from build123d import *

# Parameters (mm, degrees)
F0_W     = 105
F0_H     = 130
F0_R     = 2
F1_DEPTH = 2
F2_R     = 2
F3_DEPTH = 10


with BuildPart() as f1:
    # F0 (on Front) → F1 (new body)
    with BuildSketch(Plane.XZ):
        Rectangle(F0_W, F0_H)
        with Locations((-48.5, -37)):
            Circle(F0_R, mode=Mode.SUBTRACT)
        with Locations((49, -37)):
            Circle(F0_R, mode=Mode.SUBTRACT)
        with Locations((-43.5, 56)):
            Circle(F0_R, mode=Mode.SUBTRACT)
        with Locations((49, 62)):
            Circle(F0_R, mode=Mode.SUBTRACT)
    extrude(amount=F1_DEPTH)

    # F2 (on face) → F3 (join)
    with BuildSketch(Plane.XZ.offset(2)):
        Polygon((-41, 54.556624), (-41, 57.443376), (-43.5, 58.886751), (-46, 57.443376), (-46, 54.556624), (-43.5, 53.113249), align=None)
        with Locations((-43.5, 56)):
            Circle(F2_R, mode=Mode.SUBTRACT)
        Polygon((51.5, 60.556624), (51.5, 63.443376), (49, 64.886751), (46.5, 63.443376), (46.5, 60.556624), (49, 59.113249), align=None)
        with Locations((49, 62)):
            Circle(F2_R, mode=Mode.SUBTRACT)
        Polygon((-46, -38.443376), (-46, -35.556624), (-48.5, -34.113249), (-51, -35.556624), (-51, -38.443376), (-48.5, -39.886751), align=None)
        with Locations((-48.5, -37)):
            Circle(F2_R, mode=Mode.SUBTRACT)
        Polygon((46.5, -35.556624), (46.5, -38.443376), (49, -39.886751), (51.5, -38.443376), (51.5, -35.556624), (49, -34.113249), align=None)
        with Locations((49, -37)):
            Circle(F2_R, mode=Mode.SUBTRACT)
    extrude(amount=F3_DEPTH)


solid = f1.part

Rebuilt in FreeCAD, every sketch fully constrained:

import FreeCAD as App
import Part
import Sketcher

V = App.Vector
Q = App.Units.Quantity


def add_polygon(sketch, points):
    """Adds a closed chain of lines whose ends are joined by coincident constraints."""
    first, n = sketch.GeometryCount, len(points)
    for a, b in zip(points, points[1:] + points[:1]):
        sketch.addGeometry(Part.LineSegment(App.Vector(*a, 0), App.Vector(*b, 0)), False)
    for i in range(n):
        sketch.addConstraint(Sketcher.Constraint("Coincident", first + i, 2, first + (i + 1) % n, 1))

doc = App.newDocument("Part")
body = doc.addObject("PartDesign::Body", "Body")

# Sketch on XZ plane
sketch1 = body.newObject("Sketcher::SketchObject", "Sketch")
sketch1.AttachmentSupport = (doc.getObject("XZ_Plane"), [""])
sketch1.MapMode = "FlatFace"
add_polygon(sketch1, [(-52.5, 65), (-52.5, -65), (52.5, -65), (52.5, 65)])  # lines 0-3
sketch1.addGeometry(Part.Circle(V(-48.5, -37, 0), V(0, 0, 1), 2), False)  # 4
sketch1.addGeometry(Part.Circle(V(49, -37, 0), V(0, 0, 1), 2), False)  # 5
sketch1.addGeometry(Part.Circle(V(-43.5, 56, 0), V(0, 0, 1), 2), False)  # 6
sketch1.addGeometry(Part.Circle(V(49, 62, 0), V(0, 0, 1), 2), False)  # 7
sketch1.addConstraint([
    Sketcher.Constraint("Vertical", 0),
    Sketcher.Constraint("Horizontal", 1),
    Sketcher.Constraint("Vertical", 2),
    Sketcher.Constraint("Horizontal", 3),
    Sketcher.Constraint("Equal", 4, 5),
    Sketcher.Constraint("Equal", 5, 6),
    Sketcher.Constraint("Equal", 6, 7),
    Sketcher.Constraint("Symmetric", 0, 2, 2, 2, -1, 1),
    Sketcher.Constraint("Horizontal", 4, 3, 5, 3),
    Sketcher.Constraint("Vertical", 5, 3, 7, 3),
    Sketcher.Constraint("Diameter", 4, 4.0),
    Sketcher.Constraint("DistanceX", 1, 1, 1, 2, 105.0),
    Sketcher.Constraint("DistanceY", 0, 2, 0, 1, 130.0),
    Sketcher.Constraint("DistanceY", 4, 3, -1, 1, 37.0),
    Sketcher.Constraint("DistanceX", -1, 1, 5, 3, 49.0),
    Sketcher.Constraint("DistanceY", -1, 1, 6, 3, 56.0),
    Sketcher.Constraint("DistanceY", -1, 1, 7, 3, 62.0),
    Sketcher.Constraint("DistanceX", 4, 3, 6, 3, 5.0),
    Sketcher.Constraint("DistanceX", 0, 2, 4, 3, 4.0),
])
pad1 = body.newObject("PartDesign::Pad", "Pad")
pad1.Profile = sketch1
pad1.Length = 2

# Sketch on XZ plane
sketch2 = body.newObject("Sketcher::SketchObject", "Sketch001")
sketch2.AttachmentSupport = (doc.getObject("XZ_Plane"), [""])
sketch2.MapMode = "FlatFace"
sketch2.AttachmentOffset = App.Placement(V(0, 0, 2), App.Rotation())
add_polygon(sketch2, [(-41, 54.6), (-41, 57.4), (-43.5, 58.9), (-46, 57.4), (-46, 54.6), (-43.5, 53.1)])  # lines 0-5
sketch2.addGeometry(Part.Circle(V(-43.5, 56, 0), V(0, 0, 1), 2), False)  # 6
add_polygon(sketch2, [(51.5, 60.6), (51.5, 63.4), (49, 64.9), (46.5, 63.4), (46.5, 60.6), (49, 59.1)])  # lines 7-12
sketch2.addGeometry(Part.Circle(V(49, 62, 0), V(0, 0, 1), 2), False)  # 13
add_polygon(sketch2, [(-46, -38.4), (-46, -35.6), (-48.5, -34.1), (-51, -35.6), (-51, -38.4), (-48.5, -39.9)])  # lines 14-19
sketch2.addGeometry(Part.Circle(V(-48.5, -37, 0), V(0, 0, 1), 2), False)  # 20
add_polygon(sketch2, [(46.5, -35.6), (46.5, -38.4), (49, -39.9), (51.5, -38.4), (51.5, -35.6), (49, -34.1)])  # lines 21-26
sketch2.addGeometry(Part.Circle(V(49, -37, 0), V(0, 0, 1), 2), False)  # 27
sketch2.addConstraint([
    Sketcher.Constraint("Vertical", 0),
    Sketcher.Constraint("Vertical", 3),
    Sketcher.Constraint("Vertical", 7),
    Sketcher.Constraint("Vertical", 10),
    Sketcher.Constraint("Vertical", 14),
    Sketcher.Constraint("Vertical", 17),
    Sketcher.Constraint("Vertical", 21),
    Sketcher.Constraint("Vertical", 24),
    Sketcher.Constraint("Equal", 6, 13),
    Sketcher.Constraint("Equal", 13, 20),
    Sketcher.Constraint("Equal", 20, 27),
    Sketcher.Constraint("Parallel", 1, 4),
    Sketcher.Constraint("Parallel", 2, 5),
    Sketcher.Constraint("Parallel", 4, 8),
    Sketcher.Constraint("Parallel", 5, 9),
    Sketcher.Constraint("Parallel", 8, 11),
    Sketcher.Constraint("Parallel", 9, 12),
    Sketcher.Constraint("Parallel", 11, 15),
    Sketcher.Constraint("Parallel", 12, 16),
    Sketcher.Constraint("Parallel", 15, 18),
    Sketcher.Constraint("Parallel", 16, 19),
    Sketcher.Constraint("Parallel", 18, 22),
    Sketcher.Constraint("Parallel", 19, 23),
    Sketcher.Constraint("Parallel", 22, 25),
    Sketcher.Constraint("Parallel", 23, 26),
    Sketcher.Constraint("Horizontal", 20, 3, 27, 3),
    Sketcher.Constraint("Horizontal", 0, 2, 2, 2),
    Sketcher.Constraint("Horizontal", 3, 2, 5, 2),
    Sketcher.Constraint("Horizontal", 7, 2, 9, 2),
    Sketcher.Constraint("Horizontal", 10, 2, 12, 2),
    Sketcher.Constraint("Horizontal", 14, 2, 16, 2),
    Sketcher.Constraint("Horizontal", 17, 2, 19, 2),
    Sketcher.Constraint("Horizontal", 19, 2, 21, 2),
    Sketcher.Constraint("Horizontal", 18, 2, 22, 2),
    Sketcher.Constraint("Horizontal", 21, 2, 23, 2),
    Sketcher.Constraint("Horizontal", 16, 2, 24, 2),
    Sketcher.Constraint("Horizontal", 15, 2, 25, 2),
    Sketcher.Constraint("Vertical", 13, 3, 27, 3),
    Sketcher.Constraint("Vertical", 6, 3, 1, 2),
    Sketcher.Constraint("Vertical", 1, 2, 4, 2),
    Sketcher.Constraint("Vertical", 27, 3, 8, 2),
    Sketcher.Constraint("Vertical", 3, 2, 14, 2),
    Sketcher.Constraint("Vertical", 20, 3, 15, 2),
    Sketcher.Constraint("Vertical", 10, 2, 21, 2),
    Sketcher.Constraint("Vertical", 11, 2, 22, 2),
    Sketcher.Constraint("Equal", 3, 7),
    Sketcher.Constraint("Equal", 10, 14),
    Sketcher.Constraint("Equal", 5, 8),
    Sketcher.Constraint("Diameter", 6, 4.0),
    Sketcher.Constraint("Angle", 1, Q("150.000012 deg")),
    Sketcher.Constraint("DistanceY", -1, 1, 6, 3, 56.0),
    Sketcher.Constraint("DistanceX", -1, 1, 13, 3, 49.0),
    Sketcher.Constraint("DistanceY", -1, 1, 13, 3, 62.0),
    Sketcher.Constraint("DistanceY", 20, 3, -1, 1, 37.0),
    Sketcher.Constraint("DistanceX", 0, 2, -1, 1, 41.0),
    Sketcher.Constraint("DistanceX", 2, 2, -1, 1, 46.0),
    Sketcher.Constraint("DistanceY", 0, 2, 7, 2, 6.0),
    Sketcher.Constraint("DistanceY", 4, 2, 1, 2, 5.773502),
    Sketcher.Constraint("DistanceY", 15, 2, 4, 2, 87.226498),
    Sketcher.Constraint("DistanceY", -1, 1, 1, 2, 58.886751),
])
pad2 = body.newObject("PartDesign::Pad", "Pad001")
pad2.Profile = sketch2
pad2.Length = 10

doc.recompute()
